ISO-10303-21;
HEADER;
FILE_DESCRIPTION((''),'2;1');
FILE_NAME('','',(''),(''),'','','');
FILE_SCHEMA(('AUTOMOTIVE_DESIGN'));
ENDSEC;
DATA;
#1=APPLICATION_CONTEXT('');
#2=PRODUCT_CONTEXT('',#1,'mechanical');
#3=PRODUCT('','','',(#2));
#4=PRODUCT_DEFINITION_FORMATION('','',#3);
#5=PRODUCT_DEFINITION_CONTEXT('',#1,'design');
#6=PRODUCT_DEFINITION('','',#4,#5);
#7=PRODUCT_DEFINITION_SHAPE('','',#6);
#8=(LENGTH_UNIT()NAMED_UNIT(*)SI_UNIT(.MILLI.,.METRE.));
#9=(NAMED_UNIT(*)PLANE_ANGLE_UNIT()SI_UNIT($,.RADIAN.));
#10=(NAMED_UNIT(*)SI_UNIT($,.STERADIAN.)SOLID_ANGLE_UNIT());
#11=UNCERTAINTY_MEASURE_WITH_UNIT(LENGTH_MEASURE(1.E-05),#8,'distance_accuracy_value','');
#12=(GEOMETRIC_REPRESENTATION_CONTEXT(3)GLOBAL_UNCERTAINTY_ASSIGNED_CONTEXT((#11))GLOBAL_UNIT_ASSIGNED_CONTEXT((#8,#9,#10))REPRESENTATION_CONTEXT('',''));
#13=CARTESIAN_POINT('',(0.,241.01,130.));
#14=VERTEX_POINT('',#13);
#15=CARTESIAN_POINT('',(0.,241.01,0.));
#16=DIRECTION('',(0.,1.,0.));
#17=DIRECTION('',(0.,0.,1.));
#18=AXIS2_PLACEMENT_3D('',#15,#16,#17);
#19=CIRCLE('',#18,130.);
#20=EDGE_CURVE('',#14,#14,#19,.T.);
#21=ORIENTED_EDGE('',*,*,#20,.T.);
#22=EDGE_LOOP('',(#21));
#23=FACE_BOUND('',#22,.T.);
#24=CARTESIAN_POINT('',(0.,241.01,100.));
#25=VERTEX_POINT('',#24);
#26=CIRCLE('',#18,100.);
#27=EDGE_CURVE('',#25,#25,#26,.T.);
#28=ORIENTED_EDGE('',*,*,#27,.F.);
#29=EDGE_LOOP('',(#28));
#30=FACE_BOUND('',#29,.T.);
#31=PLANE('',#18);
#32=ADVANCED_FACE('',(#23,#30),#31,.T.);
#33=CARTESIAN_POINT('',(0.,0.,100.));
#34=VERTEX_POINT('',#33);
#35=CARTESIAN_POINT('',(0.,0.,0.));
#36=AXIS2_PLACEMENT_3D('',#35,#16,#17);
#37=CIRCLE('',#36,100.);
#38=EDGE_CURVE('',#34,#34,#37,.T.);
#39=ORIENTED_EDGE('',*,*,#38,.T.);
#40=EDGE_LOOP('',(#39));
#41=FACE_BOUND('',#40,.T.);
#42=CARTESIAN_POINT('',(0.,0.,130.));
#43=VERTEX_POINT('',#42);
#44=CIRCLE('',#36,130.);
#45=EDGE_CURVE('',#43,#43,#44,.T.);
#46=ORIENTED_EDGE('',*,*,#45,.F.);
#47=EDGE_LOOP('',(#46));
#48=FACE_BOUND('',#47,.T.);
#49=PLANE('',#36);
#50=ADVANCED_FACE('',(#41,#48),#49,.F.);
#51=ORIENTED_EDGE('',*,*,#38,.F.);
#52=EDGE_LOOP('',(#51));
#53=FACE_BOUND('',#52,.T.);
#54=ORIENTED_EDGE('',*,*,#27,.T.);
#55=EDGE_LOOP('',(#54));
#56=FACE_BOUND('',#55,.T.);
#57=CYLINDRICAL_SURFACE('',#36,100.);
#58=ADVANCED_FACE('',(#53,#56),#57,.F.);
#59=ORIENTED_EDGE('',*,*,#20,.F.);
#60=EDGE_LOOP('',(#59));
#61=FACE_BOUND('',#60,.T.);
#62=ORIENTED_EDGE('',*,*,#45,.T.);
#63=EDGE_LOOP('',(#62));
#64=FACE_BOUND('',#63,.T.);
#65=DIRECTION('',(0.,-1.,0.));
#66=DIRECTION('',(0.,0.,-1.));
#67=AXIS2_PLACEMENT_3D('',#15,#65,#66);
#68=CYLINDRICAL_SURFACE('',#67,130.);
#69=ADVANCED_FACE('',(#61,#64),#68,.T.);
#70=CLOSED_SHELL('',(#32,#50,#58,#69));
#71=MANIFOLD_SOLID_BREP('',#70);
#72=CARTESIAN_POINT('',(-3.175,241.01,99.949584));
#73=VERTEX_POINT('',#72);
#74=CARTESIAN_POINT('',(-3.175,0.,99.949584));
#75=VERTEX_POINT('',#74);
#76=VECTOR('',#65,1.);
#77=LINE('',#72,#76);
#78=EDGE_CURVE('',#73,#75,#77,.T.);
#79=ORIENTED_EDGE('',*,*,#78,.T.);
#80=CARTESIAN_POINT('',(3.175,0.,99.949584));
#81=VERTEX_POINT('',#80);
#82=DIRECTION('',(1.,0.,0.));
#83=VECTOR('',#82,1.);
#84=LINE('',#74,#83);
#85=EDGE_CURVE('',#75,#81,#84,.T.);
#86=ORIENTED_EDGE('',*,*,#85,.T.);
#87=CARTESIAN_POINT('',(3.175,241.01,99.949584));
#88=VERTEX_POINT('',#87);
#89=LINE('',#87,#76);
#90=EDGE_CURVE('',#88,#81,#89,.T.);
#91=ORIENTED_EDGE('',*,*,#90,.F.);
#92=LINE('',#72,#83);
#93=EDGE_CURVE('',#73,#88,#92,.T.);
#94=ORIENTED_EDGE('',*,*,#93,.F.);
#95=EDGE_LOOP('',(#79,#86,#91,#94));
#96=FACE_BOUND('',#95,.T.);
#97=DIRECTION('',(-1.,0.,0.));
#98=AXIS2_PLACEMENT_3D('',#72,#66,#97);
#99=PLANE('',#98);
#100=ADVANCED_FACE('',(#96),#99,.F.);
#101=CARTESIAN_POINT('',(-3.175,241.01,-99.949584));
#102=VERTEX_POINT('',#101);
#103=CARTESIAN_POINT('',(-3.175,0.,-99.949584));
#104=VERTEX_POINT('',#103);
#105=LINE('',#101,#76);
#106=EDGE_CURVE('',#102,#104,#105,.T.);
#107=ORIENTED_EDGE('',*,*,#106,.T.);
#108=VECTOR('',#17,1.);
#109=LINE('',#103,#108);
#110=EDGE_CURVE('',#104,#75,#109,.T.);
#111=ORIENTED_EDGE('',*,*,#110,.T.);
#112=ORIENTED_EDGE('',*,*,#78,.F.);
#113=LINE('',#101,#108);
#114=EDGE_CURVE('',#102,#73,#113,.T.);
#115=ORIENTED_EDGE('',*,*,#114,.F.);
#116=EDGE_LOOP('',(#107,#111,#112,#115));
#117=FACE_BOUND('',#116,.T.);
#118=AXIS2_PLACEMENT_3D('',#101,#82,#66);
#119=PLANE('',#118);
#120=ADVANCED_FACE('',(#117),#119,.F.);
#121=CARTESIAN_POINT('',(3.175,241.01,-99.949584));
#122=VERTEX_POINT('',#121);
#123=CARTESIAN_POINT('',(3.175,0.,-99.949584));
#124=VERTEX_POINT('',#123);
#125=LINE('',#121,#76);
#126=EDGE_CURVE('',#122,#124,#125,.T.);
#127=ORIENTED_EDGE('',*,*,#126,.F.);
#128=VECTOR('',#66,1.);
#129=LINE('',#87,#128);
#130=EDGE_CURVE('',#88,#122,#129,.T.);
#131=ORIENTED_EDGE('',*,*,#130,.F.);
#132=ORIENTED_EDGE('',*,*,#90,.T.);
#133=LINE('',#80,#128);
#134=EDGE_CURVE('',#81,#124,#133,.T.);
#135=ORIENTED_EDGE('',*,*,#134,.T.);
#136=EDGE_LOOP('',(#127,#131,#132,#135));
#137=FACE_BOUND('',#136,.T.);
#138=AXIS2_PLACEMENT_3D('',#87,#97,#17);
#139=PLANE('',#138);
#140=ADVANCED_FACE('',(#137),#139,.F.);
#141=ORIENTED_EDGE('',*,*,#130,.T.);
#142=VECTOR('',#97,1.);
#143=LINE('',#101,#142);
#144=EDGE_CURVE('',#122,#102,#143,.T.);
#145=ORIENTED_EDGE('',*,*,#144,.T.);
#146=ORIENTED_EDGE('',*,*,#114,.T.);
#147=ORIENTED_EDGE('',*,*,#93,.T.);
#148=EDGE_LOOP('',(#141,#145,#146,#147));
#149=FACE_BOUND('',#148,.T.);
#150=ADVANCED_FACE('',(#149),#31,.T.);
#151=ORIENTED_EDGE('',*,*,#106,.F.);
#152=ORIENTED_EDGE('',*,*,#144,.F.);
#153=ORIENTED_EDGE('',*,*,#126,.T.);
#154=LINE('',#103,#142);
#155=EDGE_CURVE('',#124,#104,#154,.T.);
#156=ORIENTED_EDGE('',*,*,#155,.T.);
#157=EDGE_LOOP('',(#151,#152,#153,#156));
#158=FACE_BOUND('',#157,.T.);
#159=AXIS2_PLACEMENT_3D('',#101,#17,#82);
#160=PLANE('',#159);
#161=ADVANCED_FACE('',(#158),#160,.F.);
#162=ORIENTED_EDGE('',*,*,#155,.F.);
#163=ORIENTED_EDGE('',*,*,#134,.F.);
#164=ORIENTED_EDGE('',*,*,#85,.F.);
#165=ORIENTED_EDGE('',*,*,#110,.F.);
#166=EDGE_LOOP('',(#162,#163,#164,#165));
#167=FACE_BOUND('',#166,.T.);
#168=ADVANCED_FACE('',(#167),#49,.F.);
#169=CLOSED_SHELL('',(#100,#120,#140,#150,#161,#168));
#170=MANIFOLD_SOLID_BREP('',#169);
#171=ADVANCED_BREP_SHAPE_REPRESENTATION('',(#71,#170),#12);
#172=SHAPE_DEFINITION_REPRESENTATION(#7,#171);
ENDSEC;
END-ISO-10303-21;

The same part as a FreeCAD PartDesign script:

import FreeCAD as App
import Part
import Sketcher

doc = App.newDocument("Part")
params = doc.addObject("Spreadsheet::Sheet", "Params")
for row, (alias, value) in enumerate([
    ("sketch1_diameter", "260 mm"),
    ("pad1_length", "241.01 mm"),
    ("sketch2_diameter", "200 mm"),
    ("sketch3_width", "6.35 mm"),
    ("pad2_length", "241.01 mm"),
], start=1):
    params.set(f"A{row}", alias)
    params.set(f"B{row}", "=" + value)
    params.setAlias(f"B{row}", alias)

body = doc.addObject("PartDesign::Body", "Body")

sketch1 = doc.addObject("Sketcher::SketchObject", "Sketch")
body.addObject(sketch1)
sketch1.AttachmentSupport = (doc.XZ_Plane, [""])
sketch1.MapMode = "FlatFace"
sketch1.addGeometry(Part.Circle(App.Vector(0, 0, 0), App.Vector(0, 0, 1), 130), False)
sketch1.addConstraint(Sketcher.Constraint("Coincident", 0, 3, -1, 1))
sketch1.addConstraint(Sketcher.Constraint("Diameter", 0, 260.0))
sketch1.setExpression("Constraints[1]", "Params.sketch1_diameter")
pad1 = doc.addObject("PartDesign::Pad", "Pad")
body.addObject(pad1)
pad1.Profile = sketch1
pad1.setExpression("Length", "Params.pad1_length")
pad1.Reversed = True

sketch2 = doc.addObject("Sketcher::SketchObject", "Sketch001")
body.addObject(sketch2)
sketch2.AttachmentSupport = (doc.XZ_Plane, [""])
sketch2.MapMode = "FlatFace"
sketch2.AttachmentOffset = App.Placement(App.Vector(0, 0, -241.01), App.Rotation())
sketch2.addGeometry(Part.Circle(App.Vector(0, 0, 0), App.Vector(0, 0, 1), 100), False)
sketch2.addConstraint(Sketcher.Constraint("Coincident", 0, 3, -1, 1))
sketch2.addConstraint(Sketcher.Constraint("Diameter", 0, 200.0))
sketch2.setExpression("Constraints[1]", "Params.sketch2_diameter")
pocket1 = doc.addObject("PartDesign::Pocket", "Pocket")
body.addObject(pocket1)
pocket1.Profile = sketch2
pocket1.Type = "ThroughAll"
pocket1.Reversed = True
body2 = doc.addObject("PartDesign::Body", "Body001")

sketch3 = doc.addObject("Sketcher::SketchObject", "Sketch002")
body2.addObject(sketch3)
sketch3.AttachmentSupport = (doc.getObject("XZ_Plane001"), [""])
sketch3.MapMode = "FlatFace"
sketch3.addGeometry(Part.LineSegment(App.Vector(-3, -100, 0), App.Vector(-3, 100, 0)), False)
sketch3.addGeometry(Part.LineSegment(App.Vector(-3, 100, 0), App.Vector(3, 100, 0)), False)
sketch3.addGeometry(Part.LineSegment(App.Vector(3, 100, 0), App.Vector(3, -100, 0)), False)
sketch3.addGeometry(Part.LineSegment(App.Vector(3, -100, 0), App.Vector(-3, -100, 0)), False)
sketch3.addConstraint(Sketcher.Constraint("Coincident", 0, 2, 1, 1))
sketch3.addConstraint(Sketcher.Constraint("Coincident", 1, 2, 2, 1))
sketch3.addConstraint(Sketcher.Constraint("Coincident", 2, 2, 3, 1))
sketch3.addConstraint(Sketcher.Constraint("Coincident", 3, 2, 0, 1))
sketch3.addConstraint(Sketcher.Constraint("Vertical", 0))
sketch3.addConstraint(Sketcher.Constraint("Horizontal", 1))
sketch3.addConstraint(Sketcher.Constraint("Vertical", 2))
sketch3.addConstraint(Sketcher.Constraint("Horizontal", 3))
sketch3.addConstraint(Sketcher.Constraint("Symmetric", 0, 2, 2, 2, -1, 1))
sketch3.addConstraint(Sketcher.Constraint("DistanceX", 1, 1, 1, 2, 6.35))
sketch3.addConstraint(Sketcher.Constraint("DistanceY", 0, 1, 0, 2, 199.899168))
sketch3.setExpression("Constraints[9]", "Params.sketch3_width")
pad2 = doc.addObject("PartDesign::Pad", "Pad001")
body2.addObject(pad2)
pad2.Profile = sketch3
pad2.setExpression("Length", "Params.pad2_length")
pad2.Reversed = True

doc.recompute()
